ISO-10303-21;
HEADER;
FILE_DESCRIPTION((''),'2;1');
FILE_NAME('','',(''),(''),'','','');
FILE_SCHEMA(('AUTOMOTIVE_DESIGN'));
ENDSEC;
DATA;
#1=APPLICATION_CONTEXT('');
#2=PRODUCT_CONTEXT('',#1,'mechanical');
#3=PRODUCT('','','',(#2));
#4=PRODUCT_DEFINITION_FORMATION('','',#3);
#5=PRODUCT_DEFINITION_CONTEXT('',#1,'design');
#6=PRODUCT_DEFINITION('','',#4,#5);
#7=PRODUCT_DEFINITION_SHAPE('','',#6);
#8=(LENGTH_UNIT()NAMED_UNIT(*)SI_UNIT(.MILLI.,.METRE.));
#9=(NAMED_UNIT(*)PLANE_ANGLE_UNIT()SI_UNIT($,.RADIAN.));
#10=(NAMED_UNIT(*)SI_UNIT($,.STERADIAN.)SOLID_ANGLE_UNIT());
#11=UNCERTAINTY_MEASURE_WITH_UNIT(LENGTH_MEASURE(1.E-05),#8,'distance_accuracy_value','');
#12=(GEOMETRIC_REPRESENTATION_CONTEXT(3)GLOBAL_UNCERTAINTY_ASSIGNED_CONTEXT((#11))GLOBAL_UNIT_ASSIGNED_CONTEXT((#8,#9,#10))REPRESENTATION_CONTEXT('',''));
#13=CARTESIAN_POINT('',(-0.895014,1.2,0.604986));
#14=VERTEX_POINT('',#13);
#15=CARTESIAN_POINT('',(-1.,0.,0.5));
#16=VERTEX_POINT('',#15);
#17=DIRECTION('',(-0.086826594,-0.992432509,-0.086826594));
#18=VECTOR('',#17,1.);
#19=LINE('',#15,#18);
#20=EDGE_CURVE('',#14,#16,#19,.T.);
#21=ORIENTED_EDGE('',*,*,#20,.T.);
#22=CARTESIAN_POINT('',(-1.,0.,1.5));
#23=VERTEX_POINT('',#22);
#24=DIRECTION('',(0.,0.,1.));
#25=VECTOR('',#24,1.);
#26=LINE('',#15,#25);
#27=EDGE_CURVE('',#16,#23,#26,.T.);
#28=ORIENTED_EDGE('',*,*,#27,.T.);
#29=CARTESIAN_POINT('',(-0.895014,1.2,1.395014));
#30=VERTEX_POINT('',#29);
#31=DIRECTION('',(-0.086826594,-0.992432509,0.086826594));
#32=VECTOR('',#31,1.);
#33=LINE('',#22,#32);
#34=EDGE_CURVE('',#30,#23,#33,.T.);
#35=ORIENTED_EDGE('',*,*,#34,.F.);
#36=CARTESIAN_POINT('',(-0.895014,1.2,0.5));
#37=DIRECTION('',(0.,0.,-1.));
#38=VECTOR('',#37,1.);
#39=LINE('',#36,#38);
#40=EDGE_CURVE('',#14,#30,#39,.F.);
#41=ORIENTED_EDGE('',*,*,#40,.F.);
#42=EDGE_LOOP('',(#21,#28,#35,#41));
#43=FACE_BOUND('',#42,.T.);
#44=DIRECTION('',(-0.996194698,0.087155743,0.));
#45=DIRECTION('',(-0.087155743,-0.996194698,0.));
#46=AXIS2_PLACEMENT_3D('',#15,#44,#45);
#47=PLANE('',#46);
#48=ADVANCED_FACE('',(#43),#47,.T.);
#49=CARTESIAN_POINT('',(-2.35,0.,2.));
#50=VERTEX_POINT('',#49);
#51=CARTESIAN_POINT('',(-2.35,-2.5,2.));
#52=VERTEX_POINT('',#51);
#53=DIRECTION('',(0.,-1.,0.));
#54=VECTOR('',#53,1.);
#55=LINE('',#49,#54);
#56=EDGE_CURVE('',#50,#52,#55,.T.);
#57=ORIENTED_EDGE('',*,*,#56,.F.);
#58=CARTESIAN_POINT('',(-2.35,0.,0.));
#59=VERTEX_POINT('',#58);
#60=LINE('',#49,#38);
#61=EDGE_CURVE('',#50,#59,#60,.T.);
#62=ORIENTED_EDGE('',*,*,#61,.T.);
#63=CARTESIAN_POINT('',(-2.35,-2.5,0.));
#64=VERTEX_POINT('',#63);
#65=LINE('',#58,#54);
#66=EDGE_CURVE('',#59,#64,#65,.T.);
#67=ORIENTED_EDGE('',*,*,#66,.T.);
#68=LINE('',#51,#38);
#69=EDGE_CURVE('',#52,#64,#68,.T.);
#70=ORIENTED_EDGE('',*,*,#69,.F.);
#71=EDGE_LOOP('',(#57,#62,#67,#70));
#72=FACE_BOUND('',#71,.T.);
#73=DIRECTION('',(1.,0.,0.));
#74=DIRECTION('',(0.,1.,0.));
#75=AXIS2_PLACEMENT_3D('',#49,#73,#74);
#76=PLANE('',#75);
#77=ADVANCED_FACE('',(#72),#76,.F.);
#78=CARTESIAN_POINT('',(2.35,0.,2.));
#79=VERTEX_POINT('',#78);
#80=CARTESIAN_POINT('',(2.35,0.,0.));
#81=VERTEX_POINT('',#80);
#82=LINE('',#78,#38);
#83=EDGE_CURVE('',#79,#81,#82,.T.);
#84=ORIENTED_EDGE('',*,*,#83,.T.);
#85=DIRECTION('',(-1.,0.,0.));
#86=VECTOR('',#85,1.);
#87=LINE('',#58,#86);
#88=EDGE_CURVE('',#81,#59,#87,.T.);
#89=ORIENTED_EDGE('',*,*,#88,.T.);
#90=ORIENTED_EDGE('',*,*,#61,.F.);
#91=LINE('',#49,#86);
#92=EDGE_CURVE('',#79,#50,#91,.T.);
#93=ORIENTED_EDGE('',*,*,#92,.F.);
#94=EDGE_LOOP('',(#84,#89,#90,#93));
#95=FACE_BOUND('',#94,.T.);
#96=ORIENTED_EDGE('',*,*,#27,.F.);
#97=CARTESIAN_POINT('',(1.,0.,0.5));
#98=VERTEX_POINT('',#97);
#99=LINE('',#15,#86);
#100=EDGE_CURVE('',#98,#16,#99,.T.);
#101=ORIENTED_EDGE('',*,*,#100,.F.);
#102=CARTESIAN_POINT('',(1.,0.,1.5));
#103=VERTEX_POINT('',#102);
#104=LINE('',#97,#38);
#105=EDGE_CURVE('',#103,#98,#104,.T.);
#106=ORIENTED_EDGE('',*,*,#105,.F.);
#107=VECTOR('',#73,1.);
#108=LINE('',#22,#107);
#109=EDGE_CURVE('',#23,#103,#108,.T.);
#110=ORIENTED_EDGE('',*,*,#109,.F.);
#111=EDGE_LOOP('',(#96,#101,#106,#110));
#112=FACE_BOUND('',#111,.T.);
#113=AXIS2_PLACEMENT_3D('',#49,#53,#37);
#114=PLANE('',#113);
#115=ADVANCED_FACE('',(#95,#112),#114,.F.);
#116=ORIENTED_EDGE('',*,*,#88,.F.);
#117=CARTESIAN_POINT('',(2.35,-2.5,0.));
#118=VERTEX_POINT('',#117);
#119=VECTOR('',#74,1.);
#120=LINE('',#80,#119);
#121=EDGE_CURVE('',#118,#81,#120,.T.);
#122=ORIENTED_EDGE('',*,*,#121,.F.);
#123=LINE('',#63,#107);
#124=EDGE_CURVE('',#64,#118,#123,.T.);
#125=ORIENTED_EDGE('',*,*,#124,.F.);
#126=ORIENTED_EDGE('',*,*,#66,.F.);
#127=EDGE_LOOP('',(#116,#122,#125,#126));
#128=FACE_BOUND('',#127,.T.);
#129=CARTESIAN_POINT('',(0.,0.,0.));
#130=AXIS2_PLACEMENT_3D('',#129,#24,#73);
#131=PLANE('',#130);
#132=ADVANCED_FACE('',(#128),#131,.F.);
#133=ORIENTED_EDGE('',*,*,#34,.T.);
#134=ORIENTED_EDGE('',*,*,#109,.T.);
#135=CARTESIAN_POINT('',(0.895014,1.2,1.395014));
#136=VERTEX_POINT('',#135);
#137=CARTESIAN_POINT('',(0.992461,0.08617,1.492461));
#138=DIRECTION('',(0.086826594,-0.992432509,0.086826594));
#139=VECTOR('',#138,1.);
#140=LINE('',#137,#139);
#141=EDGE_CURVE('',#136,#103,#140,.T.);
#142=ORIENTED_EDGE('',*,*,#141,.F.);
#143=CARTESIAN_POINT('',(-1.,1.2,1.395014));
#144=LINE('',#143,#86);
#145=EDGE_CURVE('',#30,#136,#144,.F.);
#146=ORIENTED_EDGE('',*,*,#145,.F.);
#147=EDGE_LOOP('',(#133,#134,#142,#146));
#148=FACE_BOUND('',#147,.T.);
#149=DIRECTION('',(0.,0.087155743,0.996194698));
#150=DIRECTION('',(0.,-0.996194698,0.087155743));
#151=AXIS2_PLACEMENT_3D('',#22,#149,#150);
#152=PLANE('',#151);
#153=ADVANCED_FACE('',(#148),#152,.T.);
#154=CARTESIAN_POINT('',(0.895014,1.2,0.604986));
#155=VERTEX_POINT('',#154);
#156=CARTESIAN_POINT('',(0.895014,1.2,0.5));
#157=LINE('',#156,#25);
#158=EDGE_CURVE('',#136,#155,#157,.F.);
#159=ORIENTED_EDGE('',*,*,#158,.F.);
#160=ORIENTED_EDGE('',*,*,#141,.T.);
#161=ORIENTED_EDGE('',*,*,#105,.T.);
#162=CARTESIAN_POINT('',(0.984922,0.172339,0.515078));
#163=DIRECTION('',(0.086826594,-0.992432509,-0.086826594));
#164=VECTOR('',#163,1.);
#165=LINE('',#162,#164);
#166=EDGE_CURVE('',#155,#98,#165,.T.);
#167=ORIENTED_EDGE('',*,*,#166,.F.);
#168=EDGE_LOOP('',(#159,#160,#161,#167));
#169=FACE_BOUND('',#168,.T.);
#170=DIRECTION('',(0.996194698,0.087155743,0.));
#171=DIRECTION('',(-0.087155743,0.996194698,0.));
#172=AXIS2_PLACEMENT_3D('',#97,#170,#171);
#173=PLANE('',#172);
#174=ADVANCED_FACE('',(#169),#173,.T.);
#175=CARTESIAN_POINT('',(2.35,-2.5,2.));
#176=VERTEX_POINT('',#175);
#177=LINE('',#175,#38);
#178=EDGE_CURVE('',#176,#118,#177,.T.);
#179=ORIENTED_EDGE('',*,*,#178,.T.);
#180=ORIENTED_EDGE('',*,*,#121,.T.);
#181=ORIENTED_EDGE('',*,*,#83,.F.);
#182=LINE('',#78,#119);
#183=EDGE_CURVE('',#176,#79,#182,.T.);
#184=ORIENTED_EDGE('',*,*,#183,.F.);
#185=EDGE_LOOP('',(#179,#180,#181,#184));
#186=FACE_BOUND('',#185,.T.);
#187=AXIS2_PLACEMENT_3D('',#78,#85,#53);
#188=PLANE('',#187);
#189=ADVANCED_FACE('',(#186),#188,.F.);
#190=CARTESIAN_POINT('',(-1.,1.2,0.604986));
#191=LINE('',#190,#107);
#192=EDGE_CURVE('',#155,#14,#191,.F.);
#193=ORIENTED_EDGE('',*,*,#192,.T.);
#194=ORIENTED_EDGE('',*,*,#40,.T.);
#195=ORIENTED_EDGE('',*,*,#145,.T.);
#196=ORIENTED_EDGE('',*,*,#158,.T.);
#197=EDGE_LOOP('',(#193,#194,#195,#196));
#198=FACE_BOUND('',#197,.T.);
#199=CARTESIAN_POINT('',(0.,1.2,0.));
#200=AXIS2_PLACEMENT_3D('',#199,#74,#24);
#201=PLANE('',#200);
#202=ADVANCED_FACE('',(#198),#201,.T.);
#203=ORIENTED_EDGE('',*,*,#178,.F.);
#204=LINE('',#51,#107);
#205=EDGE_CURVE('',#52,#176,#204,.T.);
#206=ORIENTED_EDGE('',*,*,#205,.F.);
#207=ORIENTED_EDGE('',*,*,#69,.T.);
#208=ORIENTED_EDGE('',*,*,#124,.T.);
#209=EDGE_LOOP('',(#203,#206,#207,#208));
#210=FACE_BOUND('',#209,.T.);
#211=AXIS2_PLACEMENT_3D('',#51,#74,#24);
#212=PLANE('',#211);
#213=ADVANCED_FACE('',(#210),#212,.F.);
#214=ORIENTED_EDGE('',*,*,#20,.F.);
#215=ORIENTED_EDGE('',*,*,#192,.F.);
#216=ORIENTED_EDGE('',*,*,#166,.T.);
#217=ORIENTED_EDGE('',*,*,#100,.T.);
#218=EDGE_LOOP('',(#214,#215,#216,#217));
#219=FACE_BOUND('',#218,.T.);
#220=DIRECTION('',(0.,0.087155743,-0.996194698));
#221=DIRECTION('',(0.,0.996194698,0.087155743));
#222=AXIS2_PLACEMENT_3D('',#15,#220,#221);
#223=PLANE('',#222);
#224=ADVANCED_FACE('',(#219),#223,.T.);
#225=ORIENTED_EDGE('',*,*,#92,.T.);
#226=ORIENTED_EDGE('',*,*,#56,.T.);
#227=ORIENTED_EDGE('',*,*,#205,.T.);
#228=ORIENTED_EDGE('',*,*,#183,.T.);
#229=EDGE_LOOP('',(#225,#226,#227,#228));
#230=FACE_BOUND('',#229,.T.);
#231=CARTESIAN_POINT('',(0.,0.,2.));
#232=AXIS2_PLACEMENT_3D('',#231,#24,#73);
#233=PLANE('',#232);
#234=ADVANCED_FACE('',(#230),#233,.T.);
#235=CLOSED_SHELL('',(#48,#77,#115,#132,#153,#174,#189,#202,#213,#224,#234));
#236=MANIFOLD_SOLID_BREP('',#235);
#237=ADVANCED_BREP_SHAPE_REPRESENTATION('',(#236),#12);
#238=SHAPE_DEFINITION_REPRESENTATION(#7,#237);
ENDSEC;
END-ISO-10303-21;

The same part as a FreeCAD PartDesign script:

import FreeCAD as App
import Part
import Sketcher
from FreeCAD import Vector

doc = App.newDocument("Part")
body = doc.addObject("PartDesign::Body", "Body")

# Sketch on XY plane
sketch1 = doc.addObject("Sketcher::SketchObject", "Sketch")
body.addObject(sketch1)
sketch1.AttachmentSupport = (doc.XY_Plane, [""])
sketch1.MapMode = "FlatFace"
sketch1.addGeometry(Part.LineSegment(Vector(-2.4, 0, 0), Vector(-2.4, -2.5, 0)), False)
sketch1.addGeometry(Part.LineSegment(Vector(-2.4, -2.5, 0), Vector(2.4, -2.5, 0)), False)
sketch1.addGeometry(Part.LineSegment(Vector(2.4, -2.5, 0), Vector(2.4, 0, 0)), False)
sketch1.addGeometry(Part.LineSegment(Vector(2.4, 0, 0), Vector(-2.4, 0, 0)), False)
sketch1.addConstraint(Sketcher.Constraint("Coincident", 0, 2, 1, 1))
sketch1.addConstraint(Sketcher.Constraint("Coincident", 1, 2, 2, 1))
sketch1.addConstraint(Sketcher.Constraint("Coincident", 2, 2, 3, 1))
sketch1.addConstraint(Sketcher.Constraint("Coincident", 3, 2, 0, 1))
sketch1.addConstraint(Sketcher.Constraint("Vertical", 0))
sketch1.addConstraint(Sketcher.Constraint("Horizontal", 1))
sketch1.addConstraint(Sketcher.Constraint("Vertical", 2))
sketch1.addConstraint(Sketcher.Constraint("Horizontal", 3))
sketch1.addConstraint(Sketcher.Constraint("Symmetric", 2, 2, 3, 2, -1, 1))
sketch1.addConstraint(Sketcher.Constraint("DistanceX", 1, 1, 1, 2, 4.7))
sketch1.addConstraint(Sketcher.Constraint("DistanceY", 0, 2, 0, 1, 2.5))
pad1 = doc.addObject("PartDesign::Pad", "Pad")
body.addObject(pad1)
pad1.Profile = sketch1
pad1.Length = 2

# Sketch on XZ plane
sketch2 = doc.addObject("Sketcher::SketchObject", "Sketch001")
body.addObject(sketch2)
sketch2.AttachmentSupport = (doc.XZ_Plane, [""])
sketch2.MapMode = "FlatFace"
sketch2.addGeometry(Part.LineSegment(Vector(-1, 0.5, 0), Vector(-1, 1.5, 0)), False)
sketch2.addGeometry(Part.LineSegment(Vector(-1, 1.5, 0), Vector(1, 1.5, 0)), False)
sketch2.addGeometry(Part.LineSegment(Vector(1, 1.5, 0), Vector(1, 0.5, 0)), False)
sketch2.addGeometry(Part.LineSegment(Vector(1, 0.5, 0), Vector(-1, 0.5, 0)), False)
sketch2.addConstraint(Sketcher.Constraint("Coincident", 0, 2, 1, 1))
sketch2.addConstraint(Sketcher.Constraint("Coincident", 1, 2, 2, 1))
sketch2.addConstraint(Sketcher.Constraint("Coincident", 2, 2, 3, 1))
sketch2.addConstraint(Sketcher.Constraint("Coincident", 3, 2, 0, 1))
sketch2.addConstraint(Sketcher.Constraint("Vertical", 0))
sketch2.addConstraint(Sketcher.Constraint("Horizontal", 1))
sketch2.addConstraint(Sketcher.Constraint("Vertical", 2))
sketch2.addConstraint(Sketcher.Constraint("Horizontal", 3))
sketch2.addConstraint(Sketcher.Constraint("DistanceX", 1, 1, 1, 2, 2.0))
sketch2.addConstraint(Sketcher.Constraint("DistanceY", 0, 1, 0, 2, 1.0))
sketch2.addConstraint(Sketcher.Constraint("DistanceX", 0, 2, -1, 1, 1.0))
sketch2.addConstraint(Sketcher.Constraint("DistanceY", -1, 1, 0, 2, 1.5))
pad2 = doc.addObject("PartDesign::Pad", "Pad001")
body.addObject(pad2)
pad2.Profile = sketch2
pad2.Length = 1.2
pad2.Reversed = True
pad2.TaperAngle = -5

doc.recompute()
